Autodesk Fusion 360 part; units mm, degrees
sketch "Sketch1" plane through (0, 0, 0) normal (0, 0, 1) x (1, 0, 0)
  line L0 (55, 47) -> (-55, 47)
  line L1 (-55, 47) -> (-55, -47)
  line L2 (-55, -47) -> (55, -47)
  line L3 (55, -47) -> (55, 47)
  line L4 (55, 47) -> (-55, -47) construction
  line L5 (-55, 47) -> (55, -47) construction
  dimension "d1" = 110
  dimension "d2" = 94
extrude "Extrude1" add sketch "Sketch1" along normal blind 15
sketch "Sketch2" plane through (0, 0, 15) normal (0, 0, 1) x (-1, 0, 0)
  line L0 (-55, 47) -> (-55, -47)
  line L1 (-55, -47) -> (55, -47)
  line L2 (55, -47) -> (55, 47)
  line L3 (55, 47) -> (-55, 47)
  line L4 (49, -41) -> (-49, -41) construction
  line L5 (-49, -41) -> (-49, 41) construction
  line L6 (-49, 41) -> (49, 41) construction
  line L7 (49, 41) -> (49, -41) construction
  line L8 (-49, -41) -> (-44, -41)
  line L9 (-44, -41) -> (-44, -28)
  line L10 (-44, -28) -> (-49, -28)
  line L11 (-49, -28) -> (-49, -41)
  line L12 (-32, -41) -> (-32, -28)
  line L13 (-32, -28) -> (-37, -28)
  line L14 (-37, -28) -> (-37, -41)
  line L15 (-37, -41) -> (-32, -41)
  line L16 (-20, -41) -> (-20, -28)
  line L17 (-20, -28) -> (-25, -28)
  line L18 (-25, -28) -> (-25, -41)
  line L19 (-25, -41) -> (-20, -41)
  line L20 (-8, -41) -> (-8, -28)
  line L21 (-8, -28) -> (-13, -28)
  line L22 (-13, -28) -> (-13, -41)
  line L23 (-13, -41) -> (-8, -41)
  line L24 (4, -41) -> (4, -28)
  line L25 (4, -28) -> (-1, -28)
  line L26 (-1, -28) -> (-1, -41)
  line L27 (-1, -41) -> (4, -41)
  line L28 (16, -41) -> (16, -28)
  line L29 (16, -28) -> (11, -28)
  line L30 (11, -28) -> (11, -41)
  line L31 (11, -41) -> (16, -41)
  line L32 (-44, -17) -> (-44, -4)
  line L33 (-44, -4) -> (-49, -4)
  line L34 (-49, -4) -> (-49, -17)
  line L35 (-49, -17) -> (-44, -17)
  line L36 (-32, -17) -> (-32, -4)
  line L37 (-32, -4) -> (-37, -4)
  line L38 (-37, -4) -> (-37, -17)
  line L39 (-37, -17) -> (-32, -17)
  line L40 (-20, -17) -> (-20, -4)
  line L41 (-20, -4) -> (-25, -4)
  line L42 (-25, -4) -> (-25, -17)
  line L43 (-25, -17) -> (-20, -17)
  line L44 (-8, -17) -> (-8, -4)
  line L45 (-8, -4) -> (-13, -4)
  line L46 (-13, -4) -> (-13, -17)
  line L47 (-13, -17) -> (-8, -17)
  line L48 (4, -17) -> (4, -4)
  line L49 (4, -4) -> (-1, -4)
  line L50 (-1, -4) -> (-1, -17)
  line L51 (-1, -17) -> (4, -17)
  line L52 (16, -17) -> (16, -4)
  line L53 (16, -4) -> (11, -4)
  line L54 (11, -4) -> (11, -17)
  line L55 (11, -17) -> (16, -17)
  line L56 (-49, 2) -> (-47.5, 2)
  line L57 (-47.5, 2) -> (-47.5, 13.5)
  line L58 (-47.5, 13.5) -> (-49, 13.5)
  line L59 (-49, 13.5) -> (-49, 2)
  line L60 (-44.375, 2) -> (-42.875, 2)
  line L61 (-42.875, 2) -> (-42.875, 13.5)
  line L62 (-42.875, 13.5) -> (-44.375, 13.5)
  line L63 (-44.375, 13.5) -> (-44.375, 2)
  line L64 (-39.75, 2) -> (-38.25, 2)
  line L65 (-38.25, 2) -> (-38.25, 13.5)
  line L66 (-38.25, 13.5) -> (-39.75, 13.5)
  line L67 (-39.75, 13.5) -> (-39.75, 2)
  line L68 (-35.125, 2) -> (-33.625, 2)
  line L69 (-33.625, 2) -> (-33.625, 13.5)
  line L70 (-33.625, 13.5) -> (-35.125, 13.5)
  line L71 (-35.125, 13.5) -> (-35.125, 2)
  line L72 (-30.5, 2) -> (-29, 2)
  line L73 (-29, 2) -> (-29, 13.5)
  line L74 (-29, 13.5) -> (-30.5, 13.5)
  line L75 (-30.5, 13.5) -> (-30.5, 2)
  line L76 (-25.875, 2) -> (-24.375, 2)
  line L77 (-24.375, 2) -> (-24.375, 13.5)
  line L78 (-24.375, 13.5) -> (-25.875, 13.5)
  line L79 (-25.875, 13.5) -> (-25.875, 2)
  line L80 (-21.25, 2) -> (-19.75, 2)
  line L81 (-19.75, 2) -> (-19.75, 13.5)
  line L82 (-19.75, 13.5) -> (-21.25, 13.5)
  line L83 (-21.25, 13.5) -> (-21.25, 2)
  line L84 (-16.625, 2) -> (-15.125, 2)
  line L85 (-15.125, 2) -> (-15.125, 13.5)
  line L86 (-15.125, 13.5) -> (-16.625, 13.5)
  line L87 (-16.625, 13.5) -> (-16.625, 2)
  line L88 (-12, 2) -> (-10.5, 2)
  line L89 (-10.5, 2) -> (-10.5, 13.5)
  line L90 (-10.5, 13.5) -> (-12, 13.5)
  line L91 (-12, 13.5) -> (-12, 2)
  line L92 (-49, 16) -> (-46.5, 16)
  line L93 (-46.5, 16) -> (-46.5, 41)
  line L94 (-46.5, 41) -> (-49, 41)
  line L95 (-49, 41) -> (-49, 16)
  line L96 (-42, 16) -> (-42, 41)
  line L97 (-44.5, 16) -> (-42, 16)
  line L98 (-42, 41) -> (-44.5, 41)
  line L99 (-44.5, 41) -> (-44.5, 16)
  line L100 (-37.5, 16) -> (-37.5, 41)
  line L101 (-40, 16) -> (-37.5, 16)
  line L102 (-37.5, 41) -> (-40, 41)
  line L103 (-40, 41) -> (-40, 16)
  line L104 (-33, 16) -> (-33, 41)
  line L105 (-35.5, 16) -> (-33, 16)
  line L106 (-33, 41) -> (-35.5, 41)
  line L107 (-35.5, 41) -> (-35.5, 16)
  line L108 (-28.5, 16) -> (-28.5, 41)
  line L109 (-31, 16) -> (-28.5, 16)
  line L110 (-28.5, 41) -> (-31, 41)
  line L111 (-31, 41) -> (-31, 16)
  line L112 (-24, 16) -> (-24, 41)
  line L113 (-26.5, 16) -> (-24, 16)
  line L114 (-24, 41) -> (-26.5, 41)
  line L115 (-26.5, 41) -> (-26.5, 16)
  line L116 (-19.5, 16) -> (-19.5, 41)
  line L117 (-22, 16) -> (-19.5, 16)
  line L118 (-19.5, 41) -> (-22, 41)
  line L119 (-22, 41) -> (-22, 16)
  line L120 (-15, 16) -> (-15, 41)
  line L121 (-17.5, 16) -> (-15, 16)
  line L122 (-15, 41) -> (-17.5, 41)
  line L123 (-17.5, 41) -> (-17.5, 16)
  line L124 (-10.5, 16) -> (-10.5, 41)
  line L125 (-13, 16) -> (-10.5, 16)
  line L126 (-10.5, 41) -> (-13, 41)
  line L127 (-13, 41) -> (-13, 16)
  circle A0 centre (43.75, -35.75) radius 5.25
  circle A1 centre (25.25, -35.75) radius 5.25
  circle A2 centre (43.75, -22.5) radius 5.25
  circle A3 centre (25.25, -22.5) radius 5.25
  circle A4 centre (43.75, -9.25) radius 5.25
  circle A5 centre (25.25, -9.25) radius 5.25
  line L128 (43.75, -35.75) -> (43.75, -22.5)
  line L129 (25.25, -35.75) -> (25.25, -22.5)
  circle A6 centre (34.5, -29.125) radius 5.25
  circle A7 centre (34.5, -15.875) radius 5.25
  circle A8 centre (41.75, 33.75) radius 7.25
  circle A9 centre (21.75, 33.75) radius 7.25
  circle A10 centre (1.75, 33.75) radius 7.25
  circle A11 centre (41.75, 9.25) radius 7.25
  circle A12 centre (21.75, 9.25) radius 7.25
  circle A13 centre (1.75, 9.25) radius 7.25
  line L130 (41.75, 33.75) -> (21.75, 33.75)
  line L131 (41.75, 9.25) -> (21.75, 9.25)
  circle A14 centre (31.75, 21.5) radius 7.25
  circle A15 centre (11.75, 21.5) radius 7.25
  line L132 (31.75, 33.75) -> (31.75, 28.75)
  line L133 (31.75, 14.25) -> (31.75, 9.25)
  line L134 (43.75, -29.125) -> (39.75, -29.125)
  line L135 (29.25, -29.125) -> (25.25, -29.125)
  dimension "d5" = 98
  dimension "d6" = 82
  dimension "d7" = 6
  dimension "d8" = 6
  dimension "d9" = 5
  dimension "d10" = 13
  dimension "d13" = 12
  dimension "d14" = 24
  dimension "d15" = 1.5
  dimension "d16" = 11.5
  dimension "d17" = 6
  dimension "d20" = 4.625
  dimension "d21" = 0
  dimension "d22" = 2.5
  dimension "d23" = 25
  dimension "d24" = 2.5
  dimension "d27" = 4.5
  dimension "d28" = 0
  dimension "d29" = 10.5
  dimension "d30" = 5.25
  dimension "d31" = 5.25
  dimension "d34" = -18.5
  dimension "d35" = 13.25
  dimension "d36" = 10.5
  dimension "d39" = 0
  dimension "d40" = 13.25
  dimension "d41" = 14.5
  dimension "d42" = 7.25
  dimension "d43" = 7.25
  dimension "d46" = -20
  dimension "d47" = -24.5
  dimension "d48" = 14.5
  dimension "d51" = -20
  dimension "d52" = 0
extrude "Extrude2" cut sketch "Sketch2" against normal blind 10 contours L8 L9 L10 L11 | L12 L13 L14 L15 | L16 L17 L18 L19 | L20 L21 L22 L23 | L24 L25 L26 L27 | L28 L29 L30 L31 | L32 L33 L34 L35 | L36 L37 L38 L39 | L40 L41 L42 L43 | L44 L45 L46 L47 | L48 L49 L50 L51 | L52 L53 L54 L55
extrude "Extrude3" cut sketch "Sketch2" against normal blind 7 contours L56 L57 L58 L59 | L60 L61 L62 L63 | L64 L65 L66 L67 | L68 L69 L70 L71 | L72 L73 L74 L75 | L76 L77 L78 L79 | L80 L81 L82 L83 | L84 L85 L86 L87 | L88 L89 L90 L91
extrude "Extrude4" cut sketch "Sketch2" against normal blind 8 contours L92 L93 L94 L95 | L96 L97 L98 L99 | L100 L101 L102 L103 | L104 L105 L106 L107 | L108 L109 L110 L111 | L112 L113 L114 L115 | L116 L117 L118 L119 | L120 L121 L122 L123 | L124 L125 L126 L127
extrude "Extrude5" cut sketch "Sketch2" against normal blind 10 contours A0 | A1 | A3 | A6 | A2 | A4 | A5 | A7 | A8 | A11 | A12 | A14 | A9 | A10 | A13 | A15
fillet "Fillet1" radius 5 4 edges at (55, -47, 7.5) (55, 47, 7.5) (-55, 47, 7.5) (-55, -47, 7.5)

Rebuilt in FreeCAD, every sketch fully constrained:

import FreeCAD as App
import Part
import Sketcher


def edges_at(feature, points):
    """Names of the edges that pass closest to the given points."""
    edges = feature.Shape.Edges
    near = lambda p: min(range(len(edges)), key=lambda i: edges[i].distToShape(Part.Vertex(*p))[0])
    return sorted({f"Edge{near(p) + 1}" for p in points})

doc = App.newDocument("Part")
params = doc.addObject("Spreadsheet::Sheet", "Params")
for row, (alias, value) in enumerate([
    ("sketch1_width", "110 mm"),
    ("sketch1_height", "94 mm"),
    ("pad1_length", "15 mm"),
    ("sketch2_width", "5 mm"),
    ("sketch2_height", "13 mm"),
    ("pocket1_length", "10 mm"),
    ("sketch3_width", "1.5 mm"),
    ("sketch3_height", "11.5 mm"),
    ("pocket2_length", "7 mm"),
    ("sketch4_height", "25 mm"),
    ("sketch4_width", "2.5 mm"),
    ("pocket3_length", "8 mm"),
    ("sketch5_diameter", "10.5 mm"),
    ("sketch5_diameter2", "14.5 mm"),
    ("pocket4_length", "10 mm"),
    ("fillet_radius", "5 mm"),
], start=1):
    params.set(f"A{row}", alias)
    params.set(f"B{row}", "=" + value)
    params.setAlias(f"B{row}", alias)

body = doc.addObject("PartDesign::Body", "Body")

sketch1 = doc.addObject("Sketcher::SketchObject", "Sketch")
body.addObject(sketch1)
sketch1.AttachmentSupport = (doc.XY_Plane, [""])
sketch1.MapMode = "FlatFace"
sketch1.addGeometry([
    Part.LineSegment(App.Vector(55, -47, 0), App.Vector(55, 47, 0)),
    Part.LineSegment(App.Vector(55, 47, 0), App.Vector(-55, 47, 0)),
    Part.LineSegment(App.Vector(-55, 47, 0), App.Vector(-55, -47, 0)),
    Part.LineSegment(App.Vector(-55, -47, 0), App.Vector(55, -47, 0)),
], False)
sketch1.addConstraint([
    Sketcher.Constraint("Coincident", 0, 2, 1, 1),
    Sketcher.Constraint("Coincident", 1, 2, 2, 1),
    Sketcher.Constraint("Coincident", 2, 2, 3, 1),
    Sketcher.Constraint("Coincident", 3, 2, 0, 1),
    Sketcher.Constraint("Vertical", 0),
    Sketcher.Constraint("Horizontal", 1),
    Sketcher.Constraint("Vertical", 2),
    Sketcher.Constraint("Horizontal", 3),
    Sketcher.Constraint("Symmetric", 0, 2, 2, 2, -1, 1),
    Sketcher.Constraint("DistanceX", 1, 2, 1, 1, 110.0),
    Sketcher.Constraint("DistanceY", 0, 1, 0, 2, 94.0),
])
sketch1.setExpression("Constraints[9]", "Params.sketch1_width")
sketch1.setExpression("Constraints[10]", "Params.sketch1_height")
pad1 = doc.addObject("PartDesign::Pad", "Pad")
body.addObject(pad1)
pad1.Profile = sketch1
pad1.setExpression("Length", "Params.pad1_length")

sketch2 = doc.addObject("Sketcher::SketchObject", "Sketch001")
body.addObject(sketch2)
sketch2.AttachmentSupport = (doc.XY_Plane, [""])
sketch2.MapMode = "FlatFace"
sketch2.AttachmentOffset = App.Placement(App.Vector(0, 0, 15), App.Rotation())
sketch2.addGeometry([
    Part.LineSegment(App.Vector(49, 28, 0), App.Vector(49, 41, 0)),
    Part.LineSegment(App.Vector(49, 41, 0), App.Vector(44, 41, 0)),
    Part.LineSegment(App.Vector(44, 41, 0), App.Vector(44, 28, 0)),
    Part.LineSegment(App.Vector(44, 28, 0), App.Vector(49, 28, 0)),
    Part.LineSegment(App.Vector(37, 41, 0), App.Vector(32, 41, 0)),
    Part.LineSegment(App.Vector(32, 41, 0), App.Vector(32, 28, 0)),
    Part.LineSegment(App.Vector(32, 28, 0), App.Vector(37, 28, 0)),
    Part.LineSegment(App.Vector(37, 28, 0), App.Vector(37, 41, 0)),
    Part.LineSegment(App.Vector(25, 41, 0), App.Vector(20, 41, 0)),
    Part.LineSegment(App.Vector(20, 41, 0), App.Vector(20, 28, 0)),
    Part.LineSegment(App.Vector(20, 28, 0), App.Vector(25, 28, 0)),
    Part.LineSegment(App.Vector(25, 28, 0), App.Vector(25, 41, 0)),
    Part.LineSegment(App.Vector(13, 41, 0), App.Vector(8, 41, 0)),
    Part.LineSegment(App.Vector(8, 41, 0), App.Vector(8, 28, 0)),
    Part.LineSegment(App.Vector(8, 28, 0), App.Vector(13, 28, 0)),
    Part.LineSegment(App.Vector(13, 28, 0), App.Vector(13, 41, 0)),
    Part.LineSegment(App.Vector(1, 41, 0), App.Vector(-4, 41, 0)),
    Part.LineSegment(App.Vector(-4, 41, 0), App.Vector(-4, 28, 0)),
    Part.LineSegment(App.Vector(-4, 28, 0), App.Vector(1, 28, 0)),
    Part.LineSegment(App.Vector(1, 28, 0), App.Vector(1, 41, 0)),
    Part.LineSegment(App.Vector(-11, 41, 0), App.Vector(-16, 41, 0)),
    Part.LineSegment(App.Vector(-16, 41, 0), App.Vector(-16, 28, 0)),
    Part.LineSegment(App.Vector(-16, 28, 0), App.Vector(-11, 28, 0)),
    Part.LineSegment(App.Vector(-11, 28, 0), App.Vector(-11, 41, 0)),
    Part.LineSegment(App.Vector(49, 17, 0), App.Vector(44, 17, 0)),
    Part.LineSegment(App.Vector(44, 17, 0), App.Vector(44, 4, 0)),
    Part.LineSegment(App.Vector(44, 4, 0), App.Vector(49, 4, 0)),
    Part.LineSegment(App.Vector(49, 4, 0), App.Vector(49, 17, 0)),
    Part.LineSegment(App.Vector(37, 17, 0), App.Vector(32, 17, 0)),
    Part.LineSegment(App.Vector(32, 17, 0), App.Vector(32, 4, 0)),
    Part.LineSegment(App.Vector(32, 4, 0), App.Vector(37, 4, 0)),
    Part.LineSegment(App.Vector(37, 4, 0), App.Vector(37, 17, 0)),
    Part.LineSegment(App.Vector(25, 17, 0), App.Vector(20, 17, 0)),
    Part.LineSegment(App.Vector(20, 17, 0), App.Vector(20, 4, 0)),
    Part.LineSegment(App.Vector(20, 4, 0), App.Vector(25, 4, 0)),
    Part.LineSegment(App.Vector(25, 4, 0), App.Vector(25, 17, 0)),
    Part.LineSegment(App.Vector(13, 17, 0), App.Vector(8, 17, 0)),
    Part.LineSegment(App.Vector(8, 17, 0), App.Vector(8, 4, 0)),
    Part.LineSegment(App.Vector(8, 4, 0), App.Vector(13, 4, 0)),
    Part.LineSegment(App.Vector(13, 4, 0), App.Vector(13, 17, 0)),
    Part.LineSegment(App.Vector(1, 17, 0), App.Vector(-4, 17, 0)),
    Part.LineSegment(App.Vector(-4, 17, 0), App.Vector(-4, 4, 0)),
    Part.LineSegment(App.Vector(-4, 4, 0), App.Vector(1, 4, 0)),
    Part.LineSegment(App.Vector(1, 4, 0), App.Vector(1, 17, 0)),
    Part.LineSegment(App.Vector(-11, 17, 0), App.Vector(-16, 17, 0)),
    Part.LineSegment(App.Vector(-16, 17, 0), App.Vector(-16, 4, 0)),
    Part.LineSegment(App.Vector(-16, 4, 0), App.Vector(-11, 4, 0)),
    Part.LineSegment(App.Vector(-11, 4, 0), App.Vector(-11, 17, 0)),
], False)
sketch2.addConstraint([
    Sketcher.Constraint("Coincident", 0, 2, 1, 1),
    Sketcher.Constraint("Coincident", 1, 2, 2, 1),
    Sketcher.Constraint("Coincident", 2, 2, 3, 1),
    Sketcher.Constraint("Coincident", 3, 2, 0, 1),
    Sketcher.Constraint("Coincident", 4, 2, 5, 1),
    Sketcher.Constraint("Coincident", 5, 2, 6, 1),
    Sketcher.Constraint("Coincident", 6, 2, 7, 1),
    Sketcher.Constraint("Coincident", 7, 2, 4, 1),
    Sketcher.Constraint("Coincident", 8, 2, 9, 1),
    Sketcher.Constraint("Coincident", 9, 2, 10, 1),
    Sketcher.Constraint("Coincident", 10, 2, 11, 1),
    Sketcher.Constraint("Coincident", 11, 2, 8, 1),
    Sketcher.Constraint("Coincident", 12, 2, 13, 1),
    Sketcher.Constraint("Coincident", 13, 2, 14, 1),
    Sketcher.Constraint("Coincident", 14, 2, 15, 1),
    Sketcher.Constraint("Coincident", 15, 2, 12, 1),
    Sketcher.Constraint("Coincident", 16, 2, 17, 1),
    Sketcher.Constraint("Coincident", 17, 2, 18, 1),
    Sketcher.Constraint("Coincident", 18, 2, 19, 1),
    Sketcher.Constraint("Coincident", 19, 2, 16, 1),
    Sketcher.Constraint("Coincident", 20, 2, 21, 1),
    Sketcher.Constraint("Coincident", 21, 2, 22, 1),
    Sketcher.Constraint("Coincident", 22, 2, 23, 1),
    Sketcher.Constraint("Coincident", 23, 2, 20, 1),
    Sketcher.Constraint("Coincident", 24, 2, 25, 1),
    Sketcher.Constraint("Coincident", 25, 2, 26, 1),
    Sketcher.Constraint("Coincident", 26, 2, 27, 1),
    Sketcher.Constraint("Coincident", 27, 2, 24, 1),
    Sketcher.Constraint("Coincident", 28, 2, 29, 1),
    Sketcher.Constraint("Coincident", 29, 2, 30, 1),
    Sketcher.Constraint("Coincident", 30, 2, 31, 1),
    Sketcher.Constraint("Coincident", 31, 2, 28, 1),
    Sketcher.Constraint("Coincident", 32, 2, 33, 1),
    Sketcher.Constraint("Coincident", 33, 2, 34, 1),
    Sketcher.Constraint("Coincident", 34, 2, 35, 1),
    Sketcher.Constraint("Coincident", 35, 2, 32, 1),
    Sketcher.Constraint("Coincident", 36, 2, 37, 1),
    Sketcher.Constraint("Coincident", 37, 2, 38, 1),
    Sketcher.Constraint("Coincident", 38, 2, 39, 1),
    Sketcher.Constraint("Coincident", 39, 2, 36, 1),
    Sketcher.Constraint("Coincident", 40, 2, 41, 1),
    Sketcher.Constraint("Coincident", 41, 2, 42, 1),
    Sketcher.Constraint("Coincident", 42, 2, 43, 1),
    Sketcher.Constraint("Coincident", 43, 2, 40, 1),
    Sketcher.Constraint("Coincident", 44, 2, 45, 1),
    Sketcher.Constraint("Coincident", 45, 2, 46, 1),
    Sketcher.Constraint("Coincident", 46, 2, 47, 1),
    Sketcher.Constraint("Coincident", 47, 2, 44, 1),
    Sketcher.Constraint("Vertical", 0),
    Sketcher.Constraint("Horizontal", 1),
    Sketcher.Constraint("Vertical", 2),
    Sketcher.Constraint("Horizontal", 3),
    Sketcher.Constraint("Horizontal", 4),
    Sketcher.Constraint("Vertical", 5),
    Sketcher.Constraint("Horizontal", 6),
    Sketcher.Constraint("Vertical", 7),
    Sketcher.Constraint("Horizontal", 8),
    Sketcher.Constraint("Vertical", 9),
    Sketcher.Constraint("Horizontal", 10),
    Sketcher.Constraint("Vertical", 11),
    Sketcher.Constraint("Horizontal", 12),
    Sketcher.Constraint("Vertical", 13),
    Sketcher.Constraint("Horizontal", 14),
    Sketcher.Constraint("Vertical", 15),
    Sketcher.Constraint("Horizontal", 16),
    Sketcher.Constraint("Vertical", 17),
    Sketcher.Constraint("Horizontal", 18),
    Sketcher.Constraint("Vertical", 19),
    Sketcher.Constraint("Horizontal", 20),
    Sketcher.Constraint("Vertical", 21),
    Sketcher.Constraint("Horizontal", 22),
    Sketcher.Constraint("Vertical", 23),
    Sketcher.Constraint("Horizontal", 24),
    Sketcher.Constraint("Vertical", 25),
    Sketcher.Constraint("Horizontal", 26),
    Sketcher.Constraint("Vertical", 27),
    Sketcher.Constraint("Horizontal", 28),
    Sketcher.Constraint("Vertical", 29),
    Sketcher.Constraint("Horizontal", 30),
    Sketcher.Constraint("Vertical", 31),
    Sketcher.Constraint("Horizontal", 32),
    Sketcher.Constraint("Vertical", 33),
    Sketcher.Constraint("Horizontal", 34),
    Sketcher.Constraint("Vertical", 35),
    Sketcher.Constraint("Horizontal", 36),
    Sketcher.Constraint("Vertical", 37),
    Sketcher.Constraint("Horizontal", 38),
    Sketcher.Constraint("Vertical", 39),
    Sketcher.Constraint("Horizontal", 40),
    Sketcher.Constraint("Vertical", 41),
    Sketcher.Constraint("Horizontal", 42),
    Sketcher.Constraint("Vertical", 43),
    Sketcher.Constraint("Horizontal", 44),
    Sketcher.Constraint("Vertical", 45),
    Sketcher.Constraint("Horizontal", 46),
    Sketcher.Constraint("Vertical", 47),
    Sketcher.Constraint("Horizontal", 1, 2, 4, 2),
    Sketcher.Constraint("Horizontal", 3, 2, 5, 2),
    Sketcher.Constraint("Horizontal", 7, 2, 8, 2),
    Sketcher.Constraint("Horizontal", 6, 2, 9, 2),
    Sketcher.Constraint("Horizontal", 11, 2, 12, 2),
    Sketcher.Constraint("Horizontal", 10, 2, 13, 2),
    Sketcher.Constraint("Horizontal", 15, 2, 16, 2),
    Sketcher.Constraint("Horizontal", 14, 2, 17, 2),
    Sketcher.Constraint("Horizontal", 19, 2, 20, 2),
    Sketcher.Constraint("Horizontal", 18, 2, 21, 2),
    Sketcher.Constraint("Horizontal", 27, 2, 28, 2),
    Sketcher.Constraint("Horizontal", 26, 2, 29, 2),
    Sketcher.Constraint("Horizontal", 31, 2, 32, 2),
    Sketcher.Constraint("Horizontal", 30, 2, 33, 2),
    Sketcher.Constraint("Horizontal", 35, 2, 36, 2),
    Sketcher.Constraint("Horizontal", 34, 2, 37, 2),
    Sketcher.Constraint("Horizontal", 39, 2, 40, 2),
    Sketcher.Constraint("Horizontal", 38, 2, 41, 2),
    Sketcher.Constraint("Horizontal", 43, 2, 44, 2),
    Sketcher.Constraint("Horizontal", 42, 2, 45, 2),
    Sketcher.Constraint("Vertical", 2, 2, 24, 2),
    Sketcher.Constraint("Vertical", 3, 2, 26, 2),
    Sketcher.Constraint("Vertical", 5, 2, 28, 2),
    Sketcher.Constraint("Vertical", 7, 2, 30, 2),
    Sketcher.Constraint("Vertical", 9, 2, 32, 2),
    Sketcher.Constraint("Vertical", 11, 2, 34, 2),
    Sketcher.Constraint("Vertical", 13, 2, 36, 2),
    Sketcher.Constraint("Vertical", 15, 2, 38, 2),
    Sketcher.Constraint("Vertical", 17, 2, 40, 2),
    Sketcher.Constraint("Vertical", 19, 2, 42, 2),
    Sketcher.Constraint("Vertical", 21, 2, 44, 2),
    Sketcher.Constraint("Vertical", 23, 2, 46, 2),
    Sketcher.Constraint("Equal", 3, 4),
    Sketcher.Constraint("Equal", 6, 8),
    Sketcher.Constraint("Equal", 10, 12),
    Sketcher.Constraint("Equal", 14, 16),
    Sketcher.Constraint("Equal", 18, 20),
    Sketcher.Constraint("Equal", 23, 25),
    Sketcher.Constraint("DistanceX", 1, 2, 1, 1, 5.0),
    Sketcher.Constraint("DistanceY", 0, 1, 0, 2, 13.0),
    Sketcher.Constraint("DistanceX", -1, 1, 8, 2, 20.0),
    Sketcher.Constraint("DistanceX", -1, 1, 14, 2, 13.0),
    Sketcher.Constraint("DistanceX", 4, 2, 1, 2, 12.0),
    Sketcher.Constraint("DistanceX", 8, 2, 4, 2, 12.0),
    Sketcher.Constraint("DistanceX", 16, 2, 12, 2, 12.0),
    Sketcher.Constraint("DistanceX", 20, 2, 16, 2, 12.0),
    Sketcher.Constraint("DistanceY", 25, 2, 2, 2, 24.0),
    Sketcher.Constraint("DistanceY", -1, 1, 0, 2, 41.0),
])
sketch2.setExpression("Constraints[134]", "Params.sketch2_width")
sketch2.setExpression("Constraints[135]", "Params.sketch2_height")
pocket1 = doc.addObject("PartDesign::Pocket", "Pocket")
body.addObject(pocket1)
pocket1.Profile = sketch2
pocket1.setExpression("Length", "Params.pocket1_length")

sketch3 = doc.addObject("Sketcher::SketchObject", "Sketch002")
body.addObject(sketch3)
sketch3.AttachmentSupport = (doc.XY_Plane, [""])
sketch3.MapMode = "FlatFace"
sketch3.AttachmentOffset = App.Placement(App.Vector(0, 0, 15), App.Rotation())
sketch3.addGeometry([
    Part.LineSegment(App.Vector(49, -13.5, 0), App.Vector(49, -2, 0)),
    Part.LineSegment(App.Vector(49, -2, 0), App.Vector(47.5, -2, 0)),
    Part.LineSegment(App.Vector(47.5, -2, 0), App.Vector(47.5, -13.5, 0)),
    Part.LineSegment(App.Vector(47.5, -13.5, 0), App.Vector(49, -13.5, 0)),
    Part.LineSegment(App.Vector(44.375, -13.5, 0), App.Vector(44.375, -2, 0)),
    Part.LineSegment(App.Vector(44.375, -2, 0), App.Vector(42.875, -2, 0)),
    Part.LineSegment(App.Vector(42.875, -2, 0), App.Vector(42.875, -13.5, 0)),
    Part.LineSegment(App.Vector(42.875, -13.5, 0), App.Vector(44.375, -13.5, 0)),
    Part.LineSegment(App.Vector(39.75, -13.5, 0), App.Vector(39.75, -2, 0)),
    Part.LineSegment(App.Vector(39.75, -2, 0), App.Vector(38.25, -2, 0)),
    Part.LineSegment(App.Vector(38.25, -2, 0), App.Vector(38.25, -13.5, 0)),
    Part.LineSegment(App.Vector(38.25, -13.5, 0), App.Vector(39.75, -13.5, 0)),
    Part.LineSegment(App.Vector(35.125, -13.5, 0), App.Vector(35.125, -2, 0)),
    Part.LineSegment(App.Vector(35.125, -2, 0), App.Vector(33.625, -2, 0)),
    Part.LineSegment(App.Vector(33.625, -2, 0), App.Vector(33.625, -13.5, 0)),
    Part.LineSegment(App.Vector(33.625, -13.5, 0), App.Vector(35.125, -13.5, 0)),
    Part.LineSegment(App.Vector(30.5, -13.5, 0), App.Vector(30.5, -2, 0)),
    Part.LineSegment(App.Vector(30.5, -2, 0), App.Vector(29, -2, 0)),
    Part.LineSegment(App.Vector(29, -2, 0), App.Vector(29, -13.5, 0)),
    Part.LineSegment(App.Vector(29, -13.5, 0), App.Vector(30.5, -13.5, 0)),
    Part.LineSegment(App.Vector(25.875, -13.5, 0), App.Vector(25.875, -2, 0)),
    Part.LineSegment(App.Vector(25.875, -2, 0), App.Vector(24.375, -2, 0)),
    Part.LineSegment(App.Vector(24.375, -2, 0), App.Vector(24.375, -13.5, 0)),
    Part.LineSegment(App.Vector(24.375, -13.5, 0), App.Vector(25.875, -13.5, 0)),
    Part.LineSegment(App.Vector(21.25, -13.5, 0), App.Vector(21.25, -2, 0)),
    Part.LineSegment(App.Vector(21.25, -2, 0), App.Vector(19.75, -2, 0)),
    Part.LineSegment(App.Vector(19.75, -2, 0), App.Vector(19.75, -13.5, 0)),
    Part.LineSegment(App.Vector(19.75, -13.5, 0), App.Vector(21.25, -13.5, 0)),
    Part.LineSegment(App.Vector(16.625, -13.5, 0), App.Vector(16.625, -2, 0)),
    Part.LineSegment(App.Vector(16.625, -2, 0), App.Vector(15.125, -2, 0)),
    Part.LineSegment(App.Vector(15.125, -2, 0), App.Vector(15.125, -13.5, 0)),
    Part.LineSegment(App.Vector(15.125, -13.5, 0), App.Vector(16.625, -13.5, 0)),
    Part.LineSegment(App.Vector(12, -13.5, 0), App.Vector(12, -2, 0)),
    Part.LineSegment(App.Vector(12, -2, 0), App.Vector(10.5, -2, 0)),
    Part.LineSegment(App.Vector(10.5, -2, 0), App.Vector(10.5, -13.5, 0)),
    Part.LineSegment(App.Vector(10.5, -13.5, 0), App.Vector(12, -13.5, 0)),
], False)
sketch3.addConstraint([
    Sketcher.Constraint("Coincident", 0, 2, 1, 1),
    Sketcher.Constraint("Coincident", 1, 2, 2, 1),
    Sketcher.Constraint("Coincident", 2, 2, 3, 1),
    Sketcher.Constraint("Coincident", 3, 2, 0, 1),
    Sketcher.Constraint("Coincident", 4, 2, 5, 1),
    Sketcher.Constraint("Coincident", 5, 2, 6, 1),
    Sketcher.Constraint("Coincident", 6, 2, 7, 1),
    Sketcher.Constraint("Coincident", 7, 2, 4, 1),
    Sketcher.Constraint("Coincident", 8, 2, 9, 1),
    Sketcher.Constraint("Coincident", 9, 2, 10, 1),
    Sketcher.Constraint("Coincident", 10, 2, 11, 1),
    Sketcher.Constraint("Coincident", 11, 2, 8, 1),
    Sketcher.Constraint("Coincident", 12, 2, 13, 1),
    Sketcher.Constraint("Coincident", 13, 2, 14, 1),
    Sketcher.Constraint("Coincident", 14, 2, 15, 1),
    Sketcher.Constraint("Coincident", 15, 2, 12, 1),
    Sketcher.Constraint("Coincident", 16, 2, 17, 1),
    Sketcher.Constraint("Coincident", 17, 2, 18, 1),
    Sketcher.Constraint("Coincident", 18, 2, 19, 1),
    Sketcher.Constraint("Coincident", 19, 2, 16, 1),
    Sketcher.Constraint("Coincident", 20, 2, 21, 1),
    Sketcher.Constraint("Coincident", 21, 2, 22, 1),
    Sketcher.Constraint("Coincident", 22, 2, 23, 1),
    Sketcher.Constraint("Coincident", 23, 2, 20, 1),
    Sketcher.Constraint("Coincident", 24, 2, 25, 1),
    Sketcher.Constraint("Coincident", 25, 2, 26, 1),
    Sketcher.Constraint("Coincident", 26, 2, 27, 1),
    Sketcher.Constraint("Coincident", 27, 2, 24, 1),
    Sketcher.Constraint("Coincident", 28, 2, 29, 1),
    Sketcher.Constraint("Coincident", 29, 2, 30, 1),
    Sketcher.Constraint("Coincident", 30, 2, 31, 1),
    Sketcher.Constraint("Coincident", 31, 2, 28, 1),
    Sketcher.Constraint("Coincident", 32, 2, 33, 1),
    Sketcher.Constraint("Coincident", 33, 2, 34, 1),
    Sketcher.Constraint("Coincident", 34, 2, 35, 1),
    Sketcher.Constraint("Coincident", 35, 2, 32, 1),
    Sketcher.Constraint("Vertical", 0),
    Sketcher.Constraint("Horizontal", 1),
    Sketcher.Constraint("Vertical", 2),
    Sketcher.Constraint("Horizontal", 3),
    Sketcher.Constraint("Vertical", 4),
    Sketcher.Constraint("Horizontal", 5),
    Sketcher.Constraint("Vertical", 6),
    Sketcher.Constraint("Horizontal", 7),
    Sketcher.Constraint("Vertical", 8),
    Sketcher.Constraint("Horizontal", 9),
    Sketcher.Constraint("Vertical", 10),
    Sketcher.Constraint("Horizontal", 11),
    Sketcher.Constraint("Vertical", 12),
    Sketcher.Constraint("Horizontal", 13),
    Sketcher.Constraint("Vertical", 14),
    Sketcher.Constraint("Horizontal", 15),
    Sketcher.Constraint("Vertical", 16),
    Sketcher.Constraint("Horizontal", 17),
    Sketcher.Constraint("Vertical", 18),
    Sketcher.Constraint("Horizontal", 19),
    Sketcher.Constraint("Vertical", 20),
    Sketcher.Constraint("Horizontal", 21),
    Sketcher.Constraint("Vertical", 22),
    Sketcher.Constraint("Horizontal", 23),
    Sketcher.Constraint("Vertical", 24),
    Sketcher.Constraint("Horizontal", 25),
    Sketcher.Constraint("Vertical", 26),
    Sketcher.Constraint("Horizontal", 27),
    Sketcher.Constraint("Vertical", 28),
    Sketcher.Constraint("Horizontal", 29),
    Sketcher.Constraint("Vertical", 30),
    Sketcher.Constraint("Horizontal", 31),
    Sketcher.Constraint("Vertical", 32),
    Sketcher.Constraint("Horizontal", 33),
    Sketcher.Constraint("Vertical", 34),
    Sketcher.Constraint("Horizontal", 35),
    Sketcher.Constraint("Horizontal", 1, 2, 4, 2),
    Sketcher.Constraint("Horizontal", 3, 2, 6, 2),
    Sketcher.Constraint("Horizontal", 5, 2, 8, 2),
    Sketcher.Constraint("Horizontal", 7, 2, 10, 2),
    Sketcher.Constraint("Horizontal", 9, 2, 12, 2),
    Sketcher.Constraint("Horizontal", 11, 2, 14, 2),
    Sketcher.Constraint("Horizontal", 13, 2, 16, 2),
    Sketcher.Constraint("Horizontal", 15, 2, 18, 2),
    Sketcher.Constraint("Horizontal", 17, 2, 20, 2),
    Sketcher.Constraint("Horizontal", 19, 2, 22, 2),
    Sketcher.Constraint("Horizontal", 21, 2, 24, 2),
    Sketcher.Constraint("Horizontal", 23, 2, 26, 2),
    Sketcher.Constraint("Horizontal", 25, 2, 28, 2),
    Sketcher.Constraint("Horizontal", 27, 2, 30, 2),
    Sketcher.Constraint("Horizontal", 29, 2, 32, 2),
    Sketcher.Constraint("Horizontal", 31, 2, 34, 2),
    Sketcher.Constraint("Equal", 3, 5),
    Sketcher.Constraint("Equal", 7, 9),
    Sketcher.Constraint("Equal", 11, 13),
    Sketcher.Constraint("Equal", 15, 17),
    Sketcher.Constraint("Equal", 19, 21),
    Sketcher.Constraint("Equal", 23, 25),
    Sketcher.Constraint("Equal", 27, 29),
    Sketcher.Constraint("Equal", 31, 33),
    Sketcher.Constraint("DistanceX", 1, 2, 1, 1, 1.5),
    Sketcher.Constraint("DistanceY", 0, 1, 0, 2, 11.5),
    Sketcher.Constraint("DistanceX", -1, 1, 32, 2, 12.0),
    Sketcher.Constraint("DistanceX", -1, 1, 0, 2, 49.0),
    Sketcher.Constraint("DistanceY", 0, 2, -1, 1, 2.0),
    Sketcher.Constraint("DistanceX", -1, 1, 17, 2, 29.0),
    Sketcher.Constraint("DistanceX", 4, 2, 0, 2, 4.625),
    Sketcher.Constraint("DistanceX", 8, 2, 4, 2, 4.625),
    Sketcher.Constraint("DistanceX", 12, 2, 8, 2, 4.625),
    Sketcher.Constraint("DistanceX", 20, 2, 16, 2, 4.625),
    Sketcher.Constraint("DistanceX", 24, 2, 20, 2, 4.625),
    Sketcher.Constraint("DistanceX", 28, 2, 24, 2, 4.625),
])
sketch3.setExpression("Constraints[96]", "Params.sketch3_width")
sketch3.setExpression("Constraints[97]", "Params.sketch3_height")
pocket2 = doc.addObject("PartDesign::Pocket", "Pocket001")
body.addObject(pocket2)
pocket2.Profile = sketch3
pocket2.setExpression("Length", "Params.pocket2_length")

sketch4 = doc.addObject("Sketcher::SketchObject", "Sketch003")
body.addObject(sketch4)
sketch4.AttachmentSupport = (doc.XY_Plane, [""])
sketch4.MapMode = "FlatFace"
sketch4.AttachmentOffset = App.Placement(App.Vector(0, 0, 15), App.Rotation())
sketch4.addGeometry([
    Part.LineSegment(App.Vector(49, -41, 0), App.Vector(49, -16, 0)),
    Part.LineSegment(App.Vector(49, -16, 0), App.Vector(46.5, -16, 0)),
    Part.LineSegment(App.Vector(46.5, -16, 0), App.Vector(46.5, -41, 0)),
    Part.LineSegment(App.Vector(46.5, -41, 0), App.Vector(49, -41, 0)),
    Part.LineSegment(App.Vector(44.5, -16, 0), App.Vector(42, -16, 0)),
    Part.LineSegment(App.Vector(42, -16, 0), App.Vector(42, -41, 0)),
    Part.LineSegment(App.Vector(42, -41, 0), App.Vector(44.5, -41, 0)),
    Part.LineSegment(App.Vector(44.5, -41, 0), App.Vector(44.5, -16, 0)),
    Part.LineSegment(App.Vector(40, -16, 0), App.Vector(37.5, -16, 0)),
    Part.LineSegment(App.Vector(37.5, -16, 0), App.Vector(37.5, -41, 0)),
    Part.LineSegment(App.Vector(37.5, -41, 0), App.Vector(40, -41, 0)),
    Part.LineSegment(App.Vector(40, -41, 0), App.Vector(40, -16, 0)),
    Part.LineSegment(App.Vector(35.5, -16, 0), App.Vector(33, -16, 0)),
    Part.LineSegment(App.Vector(33, -16, 0), App.Vector(33, -41, 0)),
    Part.LineSegment(App.Vector(33, -41, 0), App.Vector(35.5, -41, 0)),
    Part.LineSegment(App.Vector(35.5, -41, 0), App.Vector(35.5, -16, 0)),
    Part.LineSegment(App.Vector(31, -16, 0), App.Vector(28.5, -16, 0)),
    Part.LineSegment(App.Vector(28.5, -16, 0), App.Vector(28.5, -41, 0)),
    Part.LineSegment(App.Vector(28.5, -41, 0), App.Vector(31, -41, 0)),
    Part.LineSegment(App.Vector(31, -41, 0), App.Vector(31, -16, 0)),
    Part.LineSegment(App.Vector(26.5, -16, 0), App.Vector(24, -16, 0)),
    Part.LineSegment(App.Vector(24, -16, 0), App.Vector(24, -41, 0)),
    Part.LineSegment(App.Vector(24, -41, 0), App.Vector(26.5, -41, 0)),
    Part.LineSegment(App.Vector(26.5, -41, 0), App.Vector(26.5, -16, 0)),
    Part.LineSegment(App.Vector(22, -16, 0), App.Vector(19.5, -16, 0)),
    Part.LineSegment(App.Vector(19.5, -16, 0), App.Vector(19.5, -41, 0)),
    Part.LineSegment(App.Vector(19.5, -41, 0), App.Vector(22, -41, 0)),
    Part.LineSegment(App.Vector(22, -41, 0), App.Vector(22, -16, 0)),
    Part.LineSegment(App.Vector(17.5, -16, 0), App.Vector(15, -16, 0)),
    Part.LineSegment(App.Vector(15, -16, 0), App.Vector(15, -41, 0)),
    Part.LineSegment(App.Vector(15, -41, 0), App.Vector(17.5, -41, 0)),
    Part.LineSegment(App.Vector(17.5, -41, 0), App.Vector(17.5, -16, 0)),
    Part.LineSegment(App.Vector(13, -16, 0), App.Vector(10.5, -16, 0)),
    Part.LineSegment(App.Vector(10.5, -16, 0), App.Vector(10.5, -41, 0)),
    Part.LineSegment(App.Vector(10.5, -41, 0), App.Vector(13, -41, 0)),
    Part.LineSegment(App.Vector(13, -41, 0), App.Vector(13, -16, 0)),
], False)
sketch4.addConstraint([
    Sketcher.Constraint("Coincident", 0, 2, 1, 1),
    Sketcher.Constraint("Coincident", 1, 2, 2, 1),
    Sketcher.Constraint("Coincident", 2, 2, 3, 1),
    Sketcher.Constraint("Coincident", 3, 2, 0, 1),
    Sketcher.Constraint("Coincident", 4, 2, 5, 1),
    Sketcher.Constraint("Coincident", 5, 2, 6, 1),
    Sketcher.Constraint("Coincident", 6, 2, 7, 1),
    Sketcher.Constraint("Coincident", 7, 2, 4, 1),
    Sketcher.Constraint("Coincident", 8, 2, 9, 1),
    Sketcher.Constraint("Coincident", 9, 2, 10, 1),
    Sketcher.Constraint("Coincident", 10, 2, 11, 1),
    Sketcher.Constraint("Coincident", 11, 2, 8, 1),
    Sketcher.Constraint("Coincident", 12, 2, 13, 1),
    Sketcher.Constraint("Coincident", 13, 2, 14, 1),
    Sketcher.Constraint("Coincident", 14, 2, 15, 1),
    Sketcher.Constraint("Coincident", 15, 2, 12, 1),
    Sketcher.Constraint("Coincident", 16, 2, 17, 1),
    Sketcher.Constraint("Coincident", 17, 2, 18, 1),
    Sketcher.Constraint("Coincident", 18, 2, 19, 1),
    Sketcher.Constraint("Coincident", 19, 2, 16, 1),
    Sketcher.Constraint("Coincident", 20, 2, 21, 1),
    Sketcher.Constraint("Coincident", 21, 2, 22, 1),
    Sketcher.Constraint("Coincident", 22, 2, 23, 1),
    Sketcher.Constraint("Coincident", 23, 2, 20, 1),
    Sketcher.Constraint("Coincident", 24, 2, 25, 1),
    Sketcher.Constraint("Coincident", 25, 2, 26, 1),
    Sketcher.Constraint("Coincident", 26, 2, 27, 1),
    Sketcher.Constraint("Coincident", 27, 2, 24, 1),
    Sketcher.Constraint("Coincident", 28, 2, 29, 1),
    Sketcher.Constraint("Coincident", 29, 2, 30, 1),
    Sketcher.Constraint("Coincident", 30, 2, 31, 1),
    Sketcher.Constraint("Coincident", 31, 2, 28, 1),
    Sketcher.Constraint("Coincident", 32, 2, 33, 1),
    Sketcher.Constraint("Coincident", 33, 2, 34, 1),
    Sketcher.Constraint("Coincident", 34, 2, 35, 1),
    Sketcher.Constraint("Coincident", 35, 2, 32, 1),
    Sketcher.Constraint("Vertical", 0),
    Sketcher.Constraint("Horizontal", 1),
    Sketcher.Constraint("Vertical", 2),
    Sketcher.Constraint("Horizontal", 3),
    Sketcher.Constraint("Horizontal", 4),
    Sketcher.Constraint("Vertical", 5),
    Sketcher.Constraint("Horizontal", 6),
    Sketcher.Constraint("Vertical", 7),
    Sketcher.Constraint("Horizontal", 8),
    Sketcher.Constraint("Vertical", 9),
    Sketcher.Constraint("Horizontal", 10),
    Sketcher.Constraint("Vertical", 11),
    Sketcher.Constraint("Horizontal", 12),
    Sketcher.Constraint("Vertical", 13),
    Sketcher.Constraint("Horizontal", 14),
    Sketcher.Constraint("Vertical", 15),
    Sketcher.Constraint("Horizontal", 16),
    Sketcher.Constraint("Vertical", 17),
    Sketcher.Constraint("Horizontal", 18),
    Sketcher.Constraint("Vertical", 19),
    Sketcher.Constraint("Horizontal", 20),
    Sketcher.Constraint("Vertical", 21),
    Sketcher.Constraint("Horizontal", 22),
    Sketcher.Constraint("Vertical", 23),
    Sketcher.Constraint("Horizontal", 24),
    Sketcher.Constraint("Vertical", 25),
    Sketcher.Constraint("Horizontal", 26),
    Sketcher.Constraint("Vertical", 27),
    Sketcher.Constraint("Horizontal", 28),
    Sketcher.Constraint("Vertical", 29),
    Sketcher.Constraint("Horizontal", 30),
    Sketcher.Constraint("Vertical", 31),
    Sketcher.Constraint("Horizontal", 32),
    Sketcher.Constraint("Vertical", 33),
    Sketcher.Constraint("Horizontal", 34),
    Sketcher.Constraint("Vertical", 35),
    Sketcher.Constraint("Horizontal", 1, 2, 4, 2),
    Sketcher.Constraint("Horizontal", 3, 2, 5, 2),
    Sketcher.Constraint("Horizontal", 7, 2, 8, 2),
    Sketcher.Constraint("Horizontal", 6, 2, 9, 2),
    Sketcher.Constraint("Horizontal", 11, 2, 12, 2),
    Sketcher.Constraint("Horizontal", 10, 2, 13, 2),
    Sketcher.Constraint("Horizontal", 15, 2, 16, 2),
    Sketcher.Constraint("Horizontal", 14, 2, 17, 2),
    Sketcher.Constraint("Horizontal", 19, 2, 20, 2),
    Sketcher.Constraint("Horizontal", 18, 2, 21, 2),
    Sketcher.Constraint("Horizontal", 23, 2, 24, 2),
    Sketcher.Constraint("Horizontal", 22, 2, 25, 2),
    Sketcher.Constraint("Horizontal", 27, 2, 28, 2),
    Sketcher.Constraint("Horizontal", 26, 2, 29, 2),
    Sketcher.Constraint("Horizontal", 31, 2, 32, 2),
    Sketcher.Constraint("Horizontal", 30, 2, 33, 2),
    Sketcher.Constraint("Equal", 3, 4),
    Sketcher.Constraint("Equal", 6, 8),
    Sketcher.Constraint("Equal", 10, 12),
    Sketcher.Constraint("Equal", 14, 16),
    Sketcher.Constraint("Equal", 18, 20),
    Sketcher.Constraint("Equal", 22, 24),
    Sketcher.Constraint("Equal", 26, 28),
    Sketcher.Constraint("Equal", 30, 32),
    Sketcher.Constraint("DistanceY", 0, 1, 0, 2, 25.0),
    Sketcher.Constraint("DistanceX", 1, 2, 1, 1, 2.5),
    Sketcher.Constraint("DistanceX", -1, 1, 20, 2, 24.0),
    Sketcher.Constraint("DistanceX", -1, 1, 34, 2, 13.0),
    Sketcher.Constraint("DistanceX", 4, 2, 1, 2, 4.5),
    Sketcher.Constraint("DistanceX", 8, 2, 4, 2, 4.5),
    Sketcher.Constraint("DistanceX", 12, 2, 8, 2, 4.5),
    Sketcher.Constraint("DistanceX", 16, 2, 12, 2, 4.5),
    Sketcher.Constraint("DistanceX", 20, 2, 16, 2, 4.5),
    Sketcher.Constraint("DistanceX", 24, 2, 20, 2, 4.5),
    Sketcher.Constraint("DistanceX", 28, 2, 24, 2, 4.5),
    Sketcher.Constraint("DistanceY", 0, 2, -1, 1, 16.0),
])
sketch4.setExpression("Constraints[96]", "Params.sketch4_height")
sketch4.setExpression("Constraints[97]", "Params.sketch4_width")
pocket3 = doc.addObject("PartDesign::Pocket", "Pocket002")
body.addObject(pocket3)
pocket3.Profile = sketch4
pocket3.setExpression("Length", "Params.pocket3_length")

sketch5 = doc.addObject("Sketcher::SketchObject", "Sketch004")
body.addObject(sketch5)
sketch5.AttachmentSupport = (doc.XY_Plane, [""])
sketch5.MapMode = "FlatFace"
sketch5.AttachmentOffset = App.Placement(App.Vector(0, 0, 15), App.Rotation())
sketch5.addGeometry([
    Part.Circle(App.Vector(-43.75, 35.75, 0), App.Vector(0, 0, 1), 5.25),
    Part.Circle(App.Vector(-25.25, 35.75, 0), App.Vector(0, 0, 1), 5.25),
    Part.Circle(App.Vector(-25.25, 22.5, 0), App.Vector(0, 0, 1), 5.25),
    Part.Circle(App.Vector(-34.5, 29.125, 0), App.Vector(0, 0, 1), 5.25),
    Part.Circle(App.Vector(-43.75, 22.5, 0), App.Vector(0, 0, 1), 5.25),
    Part.Circle(App.Vector(-43.75, 9.25, 0), App.Vector(0, 0, 1), 5.25),
    Part.Circle(App.Vector(-25.25, 9.25, 0), App.Vector(0, 0, 1), 5.25),
    Part.Circle(App.Vector(-34.5, 15.875, 0), App.Vector(0, 0, 1), 5.25),
    Part.Circle(App.Vector(-41.75, -33.75, 0), App.Vector(0, 0, 1), 7.25),
    Part.Circle(App.Vector(-41.75, -9.25, 0), App.Vector(0, 0, 1), 7.25),
    Part.Circle(App.Vector(-21.75, -9.25, 0), App.Vector(0, 0, 1), 7.25),
    Part.Circle(App.Vector(-31.75, -21.5, 0), App.Vector(0, 0, 1), 7.25),
    Part.Circle(App.Vector(-21.75, -33.75, 0), App.Vector(0, 0, 1), 7.25),
    Part.Circle(App.Vector(-1.75, -33.75, 0), App.Vector(0, 0, 1), 7.25),
    Part.Circle(App.Vector(-1.75, -9.25, 0), App.Vector(0, 0, 1), 7.25),
    Part.Circle(App.Vector(-11.75, -21.5, 0), App.Vector(0, 0, 1), 7.25),
], False)
sketch5.addConstraint([
    Sketcher.Constraint("Equal", 0, 1),
    Sketcher.Constraint("Equal", 1, 2),
    Sketcher.Constraint("Equal", 2, 3),
    Sketcher.Constraint("Equal", 3, 4),
    Sketcher.Constraint("Equal", 4, 5),
    Sketcher.Constraint("Equal", 5, 6),
    Sketcher.Constraint("Equal", 6, 7),
    Sketcher.Constraint("Equal", 8, 9),
    Sketcher.Constraint("Equal", 9, 10),
    Sketcher.Constraint("Equal", 10, 11),
    Sketcher.Constraint("Equal", 11, 12),
    Sketcher.Constraint("Equal", 12, 13),
    Sketcher.Constraint("Equal", 13, 14),
    Sketcher.Constraint("Equal", 14, 15),
    Sketcher.Constraint("Horizontal", 0, 3, 1, 3),
    Sketcher.Constraint("Horizontal", 2, 3, 4, 3),
    Sketcher.Constraint("Horizontal", 5, 3, 6, 3),
    Sketcher.Constraint("Horizontal", 9, 3, 10, 3),
    Sketcher.Constraint("Horizontal", 8, 3, 12, 3),
    Sketcher.Constraint("Horizontal", 12, 3, 13, 3),
    Sketcher.Constraint("Horizontal", 10, 3, 14, 3),
    Sketcher.Constraint("Horizontal", 11, 3, 15, 3),
    Sketcher.Constraint("Vertical", 1, 3, 2, 3),
    Sketcher.Constraint("Vertical", 0, 3, 4, 3),
    Sketcher.Constraint("Vertical", 4, 3, 5, 3),
    Sketcher.Constraint("Vertical", 2, 3, 6, 3),
    Sketcher.Constraint("Vertical", 3, 3, 7, 3),
    Sketcher.Constraint("Vertical", 8, 3, 9, 3),
    Sketcher.Constraint("Vertical", 10, 3, 12, 3),
    Sketcher.Constraint("Vertical", 13, 3, 14, 3),
    Sketcher.Constraint("Diameter", 0, 10.5),
    Sketcher.Constraint("Diameter", 8, 14.5),
    Sketcher.Constraint("DistanceX", 9, 3, 10, 3, 20.0),
    Sketcher.Constraint("DistanceX", 5, 3, 11, 3, 12.0),
    Sketcher.Constraint("DistanceX", 12, 3, 13, 3, 20.0),
    Sketcher.Constraint("DistanceX", 11, 3, 15, 3, 20.0),
    Sketcher.Constraint("DistanceX", 0, 3, 1, 3, 18.5),
    Sketcher.Constraint("DistanceY", 9, 3, 5, 3, 18.5),
    Sketcher.Constraint("DistanceY", 8, 3, 9, 3, 24.5),
    Sketcher.Constraint("DistanceY", 2, 3, 1, 3, 13.25),
    Sketcher.Constraint("DistanceY", 5, 3, 4, 3, 13.25),
    Sketcher.Constraint("DistanceY", 7, 3, 3, 3, 13.25),
    Sketcher.Constraint("DistanceX", 8, 3, 7, 3, 7.25),
    Sketcher.Constraint("DistanceX", 5, 3, 8, 3, 2.0),
    Sketcher.Constraint("DistanceY", -1, 1, 2, 3, 22.5),
    Sketcher.Constraint("DistanceX", 3, 3, -1, 1, 34.5),
    Sketcher.Constraint("DistanceY", 11, 3, -1, 1, 21.5),
    Sketcher.Constraint("DistanceY", -1, 1, 3, 3, 29.125),
])
sketch5.setExpression("Constraints[30]", "Params.sketch5_diameter")
sketch5.setExpression("Constraints[31]", "Params.sketch5_diameter2")
pocket4 = doc.addObject("PartDesign::Pocket", "Pocket003")
body.addObject(pocket4)
pocket4.Profile = sketch5
pocket4.setExpression("Length", "Params.pocket4_length")
doc.recompute()

fillet = doc.addObject("PartDesign::Fillet", "Fillet")
body.addObject(fillet)
fillet.Base = (pocket4, edges_at(pocket4, [
    (55, -47, 7.5),
    (55, 47, 7.5),
    (-55, 47, 7.5),
    (-55, -47, 7.5),
]))
fillet.setExpression("Radius", "Params.fillet_radius")

doc.recompute()
